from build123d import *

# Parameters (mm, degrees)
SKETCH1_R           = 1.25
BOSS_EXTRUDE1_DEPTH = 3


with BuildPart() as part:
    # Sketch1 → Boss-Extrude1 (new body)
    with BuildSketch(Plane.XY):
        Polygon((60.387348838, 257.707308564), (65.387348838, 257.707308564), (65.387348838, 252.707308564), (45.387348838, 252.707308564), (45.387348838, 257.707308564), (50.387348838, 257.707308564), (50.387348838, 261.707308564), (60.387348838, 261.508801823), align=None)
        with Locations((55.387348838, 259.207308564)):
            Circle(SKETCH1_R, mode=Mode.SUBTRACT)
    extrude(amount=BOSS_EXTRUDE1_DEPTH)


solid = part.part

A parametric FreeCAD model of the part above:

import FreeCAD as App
import Part
import Sketcher

V = App.Vector
Q = App.Units.Quantity

doc = App.newDocument("Part")
params = doc.addObject("Spreadsheet::Sheet", "Params")
for row, (alias, value) in enumerate([
    ("sketch1_diameter", "2.5 mm"),
    ("sketch1_width", "5 mm"),
    ("sketch1_width2", "20 mm"),
    ("sketch1_height", "4 mm"),
    ("pad1_length", "3 mm"),
], start=1):
    params.set(f"A{row}", alias)
    params.set(f"B{row}", "=" + value)
    params.setAlias(f"B{row}", alias)

body = doc.addObject("PartDesign::Body", "Body")

# Sketch on XY plane
sketch1 = body.newObject("Sketcher::SketchObject", "Sketch")
sketch1.AttachmentSupport = (doc.getObject("XY_Plane"), [""])
sketch1.MapMode = "FlatFace"
sketch1.addGeometry([
    Part.LineSegment(V(65.387349, 257.707309, 0), V(60.387349, 257.707309, 0)),  # 0
    Part.LineSegment(V(60.387349, 257.707309, 0), V(60.387349, 261.508802, 0)),  # 1
    Part.LineSegment(V(60.387349, 261.508802, 0), V(50.387349, 261.707309, 0)),  # 2
    Part.LineSegment(V(50.387349, 261.707309, 0), V(50.387349, 257.707309, 0)),  # 3
    Part.LineSegment(V(50.387349, 257.707309, 0), V(45.387349, 257.707309, 0)),  # 4
    Part.LineSegment(V(45.387349, 257.707309, 0), V(45.387349, 252.707309, 0)),  # 5
    Part.LineSegment(V(45.387349, 252.707309, 0), V(65.387349, 252.707309, 0)),  # 6
    Part.LineSegment(V(65.387349, 252.707309, 0), V(65.387349, 257.707309, 0)),  # 7
    Part.Circle(V(55.387349, 259.207309, 0), V(0, 0, 1), 1.25),  # 8
], False)
sketch1.addConstraint([
    Sketcher.Constraint("Coincident", 0, 2, 1, 1),
    Sketcher.Constraint("Coincident", 1, 2, 2, 1),
    Sketcher.Constraint("Coincident", 2, 2, 3, 1),
    Sketcher.Constraint("Coincident", 3, 2, 4, 1),
    Sketcher.Constraint("Coincident", 4, 2, 5, 1),
    Sketcher.Constraint("Coincident", 5, 2, 6, 1),
    Sketcher.Constraint("Coincident", 6, 2, 7, 1),
    Sketcher.Constraint("Coincident", 7, 2, 0, 1),
    Sketcher.Constraint("Horizontal", 0),
    Sketcher.Constraint("Vertical", 1),
    Sketcher.Constraint("Vertical", 3),
    Sketcher.Constraint("Horizontal", 4),
    Sketcher.Constraint("Vertical", 5),
    Sketcher.Constraint("Horizontal", 6),
    Sketcher.Constraint("Vertical", 7),
    Sketcher.Constraint("Horizontal", 0, 2, 3, 2),
    Sketcher.Constraint("Equal", 0, 4),
    Sketcher.Constraint("Equal", 4, 5),
    Sketcher.Constraint("Diameter", 8, Q("2.5 mm")),
    Sketcher.Constraint("DistanceX", 0, 2, 0, 1, Q("5 mm")),
    Sketcher.Constraint("DistanceX", 6, 1, 6, 2, Q("20 mm")),
    Sketcher.Constraint("DistanceY", 3, 2, 3, 1, Q("4 mm")),
    Sketcher.Constraint("DistanceX", 8, 3, 0, 2, Q("5 mm")),
    Sketcher.Constraint("DistanceY", 0, 2, 8, 3, Q("1.5 mm")),
    Sketcher.Constraint("DistanceY", -1, 1, 1, 2, Q("261.508802 mm")),
    Sketcher.Constraint("Distance", 2, Q("10.00197 mm")),
    Sketcher.Constraint("DistanceX", -1, 1, 8, 3, Q("55.387349 mm")),
])
sketch1.setExpression("Constraints[18]", "Params.sketch1_diameter")
sketch1.setExpression("Constraints[19]", "Params.sketch1_width")
sketch1.setExpression("Constraints[20]", "Params.sketch1_width2")
sketch1.setExpression("Constraints[21]", "Params.sketch1_height")
pad1 = body.newObject("PartDesign::Pad", "Pad")
pad1.Profile = sketch1
pad1.setExpression("Length", "Params.pad1_length")

doc.recompute()
